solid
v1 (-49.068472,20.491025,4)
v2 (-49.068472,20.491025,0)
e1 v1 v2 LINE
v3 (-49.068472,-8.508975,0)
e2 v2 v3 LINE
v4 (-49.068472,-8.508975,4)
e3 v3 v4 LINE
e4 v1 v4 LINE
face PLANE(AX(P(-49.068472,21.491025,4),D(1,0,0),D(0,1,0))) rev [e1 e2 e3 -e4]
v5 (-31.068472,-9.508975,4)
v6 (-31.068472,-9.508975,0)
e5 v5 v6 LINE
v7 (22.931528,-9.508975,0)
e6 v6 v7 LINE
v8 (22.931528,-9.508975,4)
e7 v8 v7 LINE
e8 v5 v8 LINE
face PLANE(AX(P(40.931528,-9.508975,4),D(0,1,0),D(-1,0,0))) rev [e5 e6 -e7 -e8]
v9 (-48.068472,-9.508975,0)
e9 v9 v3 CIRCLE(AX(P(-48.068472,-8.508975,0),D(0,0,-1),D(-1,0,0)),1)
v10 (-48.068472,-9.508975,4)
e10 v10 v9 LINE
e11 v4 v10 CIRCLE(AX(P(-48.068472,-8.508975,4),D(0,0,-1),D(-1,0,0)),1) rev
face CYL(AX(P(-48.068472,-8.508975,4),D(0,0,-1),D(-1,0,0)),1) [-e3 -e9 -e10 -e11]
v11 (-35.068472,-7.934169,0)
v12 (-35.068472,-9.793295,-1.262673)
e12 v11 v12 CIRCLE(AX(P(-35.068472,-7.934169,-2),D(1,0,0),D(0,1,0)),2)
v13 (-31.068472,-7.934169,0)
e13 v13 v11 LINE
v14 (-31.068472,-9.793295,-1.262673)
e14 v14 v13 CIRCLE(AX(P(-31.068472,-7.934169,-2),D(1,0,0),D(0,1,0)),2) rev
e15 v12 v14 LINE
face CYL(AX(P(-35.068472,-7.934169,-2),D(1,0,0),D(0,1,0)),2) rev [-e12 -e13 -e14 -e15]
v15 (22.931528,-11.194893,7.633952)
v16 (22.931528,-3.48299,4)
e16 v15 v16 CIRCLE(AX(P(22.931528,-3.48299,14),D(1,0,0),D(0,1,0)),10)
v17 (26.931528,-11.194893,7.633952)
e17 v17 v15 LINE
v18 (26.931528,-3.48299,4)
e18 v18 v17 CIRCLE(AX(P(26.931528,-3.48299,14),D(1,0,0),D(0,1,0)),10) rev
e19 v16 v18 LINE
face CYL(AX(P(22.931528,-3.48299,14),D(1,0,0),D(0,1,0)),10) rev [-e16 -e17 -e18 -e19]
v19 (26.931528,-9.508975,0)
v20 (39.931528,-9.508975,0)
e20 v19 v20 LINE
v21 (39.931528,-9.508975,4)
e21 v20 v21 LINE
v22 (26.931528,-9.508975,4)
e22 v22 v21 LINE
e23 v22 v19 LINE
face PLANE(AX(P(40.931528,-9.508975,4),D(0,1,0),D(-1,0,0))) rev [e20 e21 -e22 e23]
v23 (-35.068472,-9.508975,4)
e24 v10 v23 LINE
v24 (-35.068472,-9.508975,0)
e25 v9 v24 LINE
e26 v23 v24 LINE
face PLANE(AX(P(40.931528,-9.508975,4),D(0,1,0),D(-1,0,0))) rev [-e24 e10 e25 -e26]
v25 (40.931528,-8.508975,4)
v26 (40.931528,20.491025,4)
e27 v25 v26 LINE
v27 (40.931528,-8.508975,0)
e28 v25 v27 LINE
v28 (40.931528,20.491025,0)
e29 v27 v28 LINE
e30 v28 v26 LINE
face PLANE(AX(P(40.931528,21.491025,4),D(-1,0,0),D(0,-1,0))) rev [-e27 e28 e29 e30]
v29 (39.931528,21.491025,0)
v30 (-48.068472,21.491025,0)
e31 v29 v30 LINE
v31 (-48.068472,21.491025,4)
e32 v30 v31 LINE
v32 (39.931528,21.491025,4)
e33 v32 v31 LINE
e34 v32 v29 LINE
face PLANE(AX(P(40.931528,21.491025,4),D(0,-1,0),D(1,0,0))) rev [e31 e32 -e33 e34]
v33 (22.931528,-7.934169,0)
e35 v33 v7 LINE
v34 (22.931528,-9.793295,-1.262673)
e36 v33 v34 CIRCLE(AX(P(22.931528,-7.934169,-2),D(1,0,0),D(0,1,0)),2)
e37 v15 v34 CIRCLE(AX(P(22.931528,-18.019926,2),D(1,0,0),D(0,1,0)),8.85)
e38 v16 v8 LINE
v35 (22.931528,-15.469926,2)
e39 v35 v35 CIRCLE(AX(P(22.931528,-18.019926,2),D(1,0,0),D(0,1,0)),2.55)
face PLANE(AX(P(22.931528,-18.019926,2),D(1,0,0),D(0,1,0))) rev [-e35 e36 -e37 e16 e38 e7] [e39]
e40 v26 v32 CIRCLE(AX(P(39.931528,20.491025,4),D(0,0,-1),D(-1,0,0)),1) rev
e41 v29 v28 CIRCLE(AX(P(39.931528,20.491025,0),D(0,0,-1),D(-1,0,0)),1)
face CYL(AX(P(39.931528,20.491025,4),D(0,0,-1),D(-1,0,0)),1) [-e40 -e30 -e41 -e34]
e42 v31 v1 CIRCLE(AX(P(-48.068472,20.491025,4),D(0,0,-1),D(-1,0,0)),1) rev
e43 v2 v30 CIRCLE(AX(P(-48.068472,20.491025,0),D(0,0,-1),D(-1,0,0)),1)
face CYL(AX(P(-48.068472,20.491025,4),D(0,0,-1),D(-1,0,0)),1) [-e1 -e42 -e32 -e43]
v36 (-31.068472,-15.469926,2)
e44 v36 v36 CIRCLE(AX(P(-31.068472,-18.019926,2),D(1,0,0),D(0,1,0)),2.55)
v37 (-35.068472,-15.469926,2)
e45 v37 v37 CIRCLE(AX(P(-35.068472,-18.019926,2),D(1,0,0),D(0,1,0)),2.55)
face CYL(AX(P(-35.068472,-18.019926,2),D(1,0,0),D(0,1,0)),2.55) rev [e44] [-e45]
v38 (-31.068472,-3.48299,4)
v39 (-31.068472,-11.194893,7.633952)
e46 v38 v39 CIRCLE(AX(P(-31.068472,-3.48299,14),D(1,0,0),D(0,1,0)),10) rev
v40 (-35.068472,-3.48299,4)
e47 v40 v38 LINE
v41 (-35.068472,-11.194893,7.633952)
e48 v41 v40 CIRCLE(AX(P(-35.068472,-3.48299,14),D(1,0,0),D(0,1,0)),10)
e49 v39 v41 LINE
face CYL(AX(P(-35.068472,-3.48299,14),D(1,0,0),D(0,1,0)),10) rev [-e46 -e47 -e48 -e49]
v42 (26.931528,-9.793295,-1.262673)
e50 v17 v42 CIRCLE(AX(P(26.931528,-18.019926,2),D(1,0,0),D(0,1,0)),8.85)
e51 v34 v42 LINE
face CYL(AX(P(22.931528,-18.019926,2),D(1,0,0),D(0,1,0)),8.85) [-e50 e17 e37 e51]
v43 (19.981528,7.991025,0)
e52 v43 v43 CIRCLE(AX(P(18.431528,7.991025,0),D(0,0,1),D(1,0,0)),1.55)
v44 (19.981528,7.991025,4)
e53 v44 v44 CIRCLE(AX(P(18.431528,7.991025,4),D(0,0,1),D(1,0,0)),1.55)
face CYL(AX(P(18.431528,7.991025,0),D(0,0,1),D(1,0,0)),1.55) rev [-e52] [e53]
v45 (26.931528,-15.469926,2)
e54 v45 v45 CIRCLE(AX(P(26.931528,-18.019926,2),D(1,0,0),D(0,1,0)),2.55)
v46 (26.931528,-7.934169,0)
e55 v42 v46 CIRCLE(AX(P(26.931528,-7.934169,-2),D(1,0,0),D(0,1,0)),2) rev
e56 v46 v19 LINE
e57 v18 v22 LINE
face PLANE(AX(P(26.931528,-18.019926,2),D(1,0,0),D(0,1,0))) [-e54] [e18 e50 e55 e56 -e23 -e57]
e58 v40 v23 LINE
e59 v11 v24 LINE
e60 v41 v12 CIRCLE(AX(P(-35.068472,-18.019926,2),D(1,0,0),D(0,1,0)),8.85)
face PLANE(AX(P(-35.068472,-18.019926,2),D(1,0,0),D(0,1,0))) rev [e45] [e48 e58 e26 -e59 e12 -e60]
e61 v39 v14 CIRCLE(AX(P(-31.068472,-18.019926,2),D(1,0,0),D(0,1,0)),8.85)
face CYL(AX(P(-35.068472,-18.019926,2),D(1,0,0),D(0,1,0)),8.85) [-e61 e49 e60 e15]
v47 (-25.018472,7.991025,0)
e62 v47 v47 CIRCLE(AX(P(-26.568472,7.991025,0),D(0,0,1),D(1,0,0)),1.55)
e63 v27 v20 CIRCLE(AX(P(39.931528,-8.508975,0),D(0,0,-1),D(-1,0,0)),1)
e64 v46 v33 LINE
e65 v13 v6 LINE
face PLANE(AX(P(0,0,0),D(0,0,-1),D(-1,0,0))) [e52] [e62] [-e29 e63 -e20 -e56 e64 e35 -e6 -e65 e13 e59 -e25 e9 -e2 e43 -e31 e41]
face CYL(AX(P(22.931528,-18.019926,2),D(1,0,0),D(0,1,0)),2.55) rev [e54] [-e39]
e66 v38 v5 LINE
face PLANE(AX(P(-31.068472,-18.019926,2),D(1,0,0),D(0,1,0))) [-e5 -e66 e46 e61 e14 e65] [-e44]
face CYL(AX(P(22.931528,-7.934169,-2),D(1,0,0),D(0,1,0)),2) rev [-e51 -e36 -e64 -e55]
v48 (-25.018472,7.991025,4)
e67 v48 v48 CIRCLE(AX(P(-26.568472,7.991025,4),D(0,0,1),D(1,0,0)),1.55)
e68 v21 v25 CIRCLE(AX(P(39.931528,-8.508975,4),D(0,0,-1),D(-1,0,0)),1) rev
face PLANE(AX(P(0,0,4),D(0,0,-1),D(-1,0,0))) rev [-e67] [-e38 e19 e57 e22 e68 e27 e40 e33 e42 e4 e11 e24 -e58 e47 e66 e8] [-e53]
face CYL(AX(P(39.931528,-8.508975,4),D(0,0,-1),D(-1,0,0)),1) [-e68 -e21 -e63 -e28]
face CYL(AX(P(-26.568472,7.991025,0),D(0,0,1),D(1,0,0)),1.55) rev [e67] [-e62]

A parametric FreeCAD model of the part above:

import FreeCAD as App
import Part
import Sketcher
from FreeCAD import Vector


def edges_at(feature, points):
    """Names of the edges that pass closest to the given points."""
    edges = feature.Shape.Edges
    near = lambda p: min(range(len(edges)), key=lambda i: edges[i].distToShape(Part.Vertex(*p))[0])
    return sorted({f"Edge{near(p) + 1}" for p in points})


def add_polygon(sketch, points):
    """Adds a closed chain of lines whose ends are joined by coincident constraints."""
    first, n = sketch.GeometryCount, len(points)
    for a, b in zip(points, points[1:] + points[:1]):
        sketch.addGeometry(Part.LineSegment(App.Vector(*a, 0), App.Vector(*b, 0)), False)
    for i in range(n):
        sketch.addConstraint(Sketcher.Constraint("Coincident", first + i, 2, first + (i + 1) % n, 1))

doc = App.newDocument("Part")
body = doc.addObject("PartDesign::Body", "Body")

# Sketch on XY plane
sketch1 = body.newObject("Sketcher::SketchObject", "Sketch")
sketch1.AttachmentSupport = (doc.getObject("XY_Plane"), [""])
sketch1.MapMode = "FlatFace"
add_polygon(sketch1, [(-49, 21), (-49, -10), (41, -10), (41, 21)])  # lines 0-3
sketch1.addConstraint([
    Sketcher.Constraint("Vertical", 0),
    Sketcher.Constraint("Horizontal", 1),
    Sketcher.Constraint("Vertical", 2),
    Sketcher.Constraint("Horizontal", 3),
    Sketcher.Constraint("DistanceX", 1, 1, 1, 2, 90.0),
    Sketcher.Constraint("DistanceY", 0, 2, 0, 1, 31.0),
    Sketcher.Constraint("DistanceX", 0, 2, -1, 1, 49.068472),
    Sketcher.Constraint("DistanceY", 0, 2, -1, 1, 9.508975),
])
pad1 = body.newObject("PartDesign::Pad", "Pad")
pad1.Profile = sketch1
pad1.Length = 4

# Sketch on YZ plane
sketch2 = body.newObject("Sketcher::SketchObject", "Sketch001")
sketch2.AttachmentSupport = (doc.getObject("YZ_Plane"), [""])
sketch2.MapMode = "FlatFace"
sketch2.AttachmentOffset = App.Placement(Vector(0, 0, 26.931528), App.Rotation())
sketch2.addGeometry([
    Part.Circle(Vector(-18, 2, 0), Vector(0, 0, 1), 8.8),
    Part.Circle(Vector(-18, 2, 0), Vector(0, 0, 1), 2.5),
], False)
sketch2.addConstraint([
    Sketcher.Constraint("Coincident", 1, 3, 0, 3),
    Sketcher.Constraint("Diameter", 0, 17.7),
    Sketcher.Constraint("Diameter", 1, 5.1),
    Sketcher.Constraint("DistanceY", -1, 1, 0, 3, 2.0),
    Sketcher.Constraint("DistanceX", 0, 3, -1, 1, 18.019926),
])
pad2 = body.newObject("PartDesign::Pad", "Pad001")
pad2.Profile = sketch2
pad2.Length = 4
pad2.Reversed = True
doc.recompute()

linearpattern = body.newObject("PartDesign::LinearPattern", "LinearPattern")
linearpattern.Originals = [pad2]
linearpattern.Direction = (doc.getObject("X_Axis"), [""])
linearpattern.Mode = "offset"
linearpattern.Offset = 58
linearpattern.Occurrences = 2
linearpattern.Reversed = True
body.Tip = linearpattern
doc.recompute()

fillet = body.newObject("PartDesign::Fillet", "Fillet")
fillet.Base = (linearpattern, edges_at(linearpattern, [(24.932, -9.399, 4), (-33.068, -9.399, 4)]))
fillet.Radius = 10
doc.recompute()

fillet2 = body.newObject("PartDesign::Fillet", "Fillet001")
fillet2.Base = (fillet, edges_at(fillet, [(24.932, -9.399, 0), (-33.068, -9.399, 0)]))
fillet2.Radius = 2

# Sketch on XY plane
sketch3 = body.newObject("Sketcher::SketchObject", "Sketch002")
sketch3.AttachmentSupport = (doc.getObject("XY_Plane"), [""])
sketch3.MapMode = "FlatFace"
sketch3.AttachmentOffset = App.Placement(Vector(0, 0, 4), App.Rotation())
sketch3.addGeometry([
    Part.Circle(Vector(-26.6, 8, 0), Vector(0, 0, 1), 1.6),
    Part.Circle(Vector(18.4, 8, 0), Vector(0, 0, 1), 1.6),
], False)
sketch3.addConstraint([
    Sketcher.Constraint("Equal", 0, 1),
    Sketcher.Constraint("Horizontal", 0, 3, 1, 3),
    Sketcher.Constraint("Diameter", 0, 3.1),
    Sketcher.Constraint("DistanceX", 0, 3, 1, 3, 45.0),
    Sketcher.Constraint("DistanceX", 0, 3, -1, 1, 26.568472),
    Sketcher.Constraint("DistanceY", -1, 1, 0, 3, 7.991025),
])
pocket1 = body.newObject("PartDesign::Pocket", "Pocket")
pocket1.Profile = sketch3
pocket1.Length = 4
doc.recompute()

fillet3 = body.newObject("PartDesign::Fillet", "Fillet002")
fillet3.Base = (pocket1, edges_at(pocket1, [
    (40.932, -9.509, 2),
    (-49.068, -9.509, 2),
    (-49.068, 21.491, 2),
    (40.932, 21.491, 2),
]))
fillet3.Radius = 1

doc.recompute()
